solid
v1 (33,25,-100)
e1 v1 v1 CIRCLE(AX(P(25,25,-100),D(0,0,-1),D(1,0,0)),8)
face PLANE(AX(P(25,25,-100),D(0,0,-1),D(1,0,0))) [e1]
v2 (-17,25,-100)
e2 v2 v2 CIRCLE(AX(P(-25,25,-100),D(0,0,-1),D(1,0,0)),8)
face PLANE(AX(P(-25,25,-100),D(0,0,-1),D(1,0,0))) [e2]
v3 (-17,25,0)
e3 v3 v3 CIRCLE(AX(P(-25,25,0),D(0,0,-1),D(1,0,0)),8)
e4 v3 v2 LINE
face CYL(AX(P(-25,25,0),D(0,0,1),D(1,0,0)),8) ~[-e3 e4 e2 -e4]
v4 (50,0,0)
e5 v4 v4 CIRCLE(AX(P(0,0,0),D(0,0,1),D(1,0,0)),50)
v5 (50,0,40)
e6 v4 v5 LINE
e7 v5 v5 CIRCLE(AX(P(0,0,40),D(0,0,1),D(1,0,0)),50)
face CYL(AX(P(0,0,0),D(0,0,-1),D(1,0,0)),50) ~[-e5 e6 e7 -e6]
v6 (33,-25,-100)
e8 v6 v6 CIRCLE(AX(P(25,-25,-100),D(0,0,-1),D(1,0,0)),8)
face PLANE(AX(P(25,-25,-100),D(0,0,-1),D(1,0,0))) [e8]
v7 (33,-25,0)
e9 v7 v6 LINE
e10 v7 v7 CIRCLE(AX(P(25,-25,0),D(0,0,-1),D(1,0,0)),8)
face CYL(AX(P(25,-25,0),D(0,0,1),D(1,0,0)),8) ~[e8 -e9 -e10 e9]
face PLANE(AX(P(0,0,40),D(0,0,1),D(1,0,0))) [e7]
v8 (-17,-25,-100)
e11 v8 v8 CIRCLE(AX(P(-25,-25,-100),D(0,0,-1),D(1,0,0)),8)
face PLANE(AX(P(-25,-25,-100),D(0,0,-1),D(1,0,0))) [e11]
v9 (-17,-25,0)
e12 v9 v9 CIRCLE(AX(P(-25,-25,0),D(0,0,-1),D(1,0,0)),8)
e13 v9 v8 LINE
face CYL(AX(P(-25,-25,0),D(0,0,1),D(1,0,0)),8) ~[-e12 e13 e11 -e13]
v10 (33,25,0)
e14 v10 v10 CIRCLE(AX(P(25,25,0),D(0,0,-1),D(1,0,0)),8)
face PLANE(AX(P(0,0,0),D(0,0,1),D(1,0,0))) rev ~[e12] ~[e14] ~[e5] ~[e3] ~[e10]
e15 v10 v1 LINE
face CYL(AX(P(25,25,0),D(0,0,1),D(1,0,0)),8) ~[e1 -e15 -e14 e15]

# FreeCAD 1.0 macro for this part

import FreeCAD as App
import Part
import Sketcher
from FreeCAD import Vector

doc = App.newDocument("Part")
body = doc.addObject("PartDesign::Body", "Body")

sketch1 = body.newObject("Sketcher::SketchObject", "Sketch")
sketch1.AttachmentSupport = (doc.getObject("XY_Plane"), [""])
sketch1.MapMode = "FlatFace"
sketch1.addGeometry(Part.Circle(Vector(0, 0, 0), Vector(0, 0, 1), 50), False)
sketch1.addConstraint([
    Sketcher.Constraint("Coincident", 0, 3, -1, 1),
    Sketcher.Constraint("Diameter", 0, 100.0),
])
pad1 = body.newObject("PartDesign::Pad", "Pad")
pad1.Profile = sketch1
pad1.Length = 40

sketch2 = body.newObject("Sketcher::SketchObject", "Sketch001")
sketch2.AttachmentSupport = (doc.getObject("XY_Plane"), [""])
sketch2.MapMode = "FlatFace"
sketch2.addGeometry([
    Part.Circle(Vector(25, -25, 0), Vector(0, 0, 1), 8),
    Part.Circle(Vector(25, 25, 0), Vector(0, 0, 1), 8),
    Part.Circle(Vector(-25, 25, 0), Vector(0, 0, 1), 8),
    Part.Circle(Vector(-25, -25, 0), Vector(0, 0, 1), 8),
], False)
sketch2.addConstraint([
    Sketcher.Constraint("Equal", 0, 1),
    Sketcher.Constraint("Equal", 1, 2),
    Sketcher.Constraint("Equal", 2, 3),
    Sketcher.Constraint("Symmetric", 0, 3, 2, 3, -1, 1),
    Sketcher.Constraint("Symmetric", 1, 3, 3, 3, -1, 1),
    Sketcher.Constraint("Symmetric", 1, 3, 2, 3, -2),
    Sketcher.Constraint("Diameter", 0, 16.0),
    Sketcher.Constraint("DistanceX", -1, 1, 0, 3, 25.0),
    Sketcher.Constraint("DistanceY", 0, 3, -1, 1, 25.0),
])
pad2 = body.newObject("PartDesign::Pad", "Pad001")
pad2.Profile = sketch2
pad2.Length = 100
pad2.Reversed = True

doc.recompute()
